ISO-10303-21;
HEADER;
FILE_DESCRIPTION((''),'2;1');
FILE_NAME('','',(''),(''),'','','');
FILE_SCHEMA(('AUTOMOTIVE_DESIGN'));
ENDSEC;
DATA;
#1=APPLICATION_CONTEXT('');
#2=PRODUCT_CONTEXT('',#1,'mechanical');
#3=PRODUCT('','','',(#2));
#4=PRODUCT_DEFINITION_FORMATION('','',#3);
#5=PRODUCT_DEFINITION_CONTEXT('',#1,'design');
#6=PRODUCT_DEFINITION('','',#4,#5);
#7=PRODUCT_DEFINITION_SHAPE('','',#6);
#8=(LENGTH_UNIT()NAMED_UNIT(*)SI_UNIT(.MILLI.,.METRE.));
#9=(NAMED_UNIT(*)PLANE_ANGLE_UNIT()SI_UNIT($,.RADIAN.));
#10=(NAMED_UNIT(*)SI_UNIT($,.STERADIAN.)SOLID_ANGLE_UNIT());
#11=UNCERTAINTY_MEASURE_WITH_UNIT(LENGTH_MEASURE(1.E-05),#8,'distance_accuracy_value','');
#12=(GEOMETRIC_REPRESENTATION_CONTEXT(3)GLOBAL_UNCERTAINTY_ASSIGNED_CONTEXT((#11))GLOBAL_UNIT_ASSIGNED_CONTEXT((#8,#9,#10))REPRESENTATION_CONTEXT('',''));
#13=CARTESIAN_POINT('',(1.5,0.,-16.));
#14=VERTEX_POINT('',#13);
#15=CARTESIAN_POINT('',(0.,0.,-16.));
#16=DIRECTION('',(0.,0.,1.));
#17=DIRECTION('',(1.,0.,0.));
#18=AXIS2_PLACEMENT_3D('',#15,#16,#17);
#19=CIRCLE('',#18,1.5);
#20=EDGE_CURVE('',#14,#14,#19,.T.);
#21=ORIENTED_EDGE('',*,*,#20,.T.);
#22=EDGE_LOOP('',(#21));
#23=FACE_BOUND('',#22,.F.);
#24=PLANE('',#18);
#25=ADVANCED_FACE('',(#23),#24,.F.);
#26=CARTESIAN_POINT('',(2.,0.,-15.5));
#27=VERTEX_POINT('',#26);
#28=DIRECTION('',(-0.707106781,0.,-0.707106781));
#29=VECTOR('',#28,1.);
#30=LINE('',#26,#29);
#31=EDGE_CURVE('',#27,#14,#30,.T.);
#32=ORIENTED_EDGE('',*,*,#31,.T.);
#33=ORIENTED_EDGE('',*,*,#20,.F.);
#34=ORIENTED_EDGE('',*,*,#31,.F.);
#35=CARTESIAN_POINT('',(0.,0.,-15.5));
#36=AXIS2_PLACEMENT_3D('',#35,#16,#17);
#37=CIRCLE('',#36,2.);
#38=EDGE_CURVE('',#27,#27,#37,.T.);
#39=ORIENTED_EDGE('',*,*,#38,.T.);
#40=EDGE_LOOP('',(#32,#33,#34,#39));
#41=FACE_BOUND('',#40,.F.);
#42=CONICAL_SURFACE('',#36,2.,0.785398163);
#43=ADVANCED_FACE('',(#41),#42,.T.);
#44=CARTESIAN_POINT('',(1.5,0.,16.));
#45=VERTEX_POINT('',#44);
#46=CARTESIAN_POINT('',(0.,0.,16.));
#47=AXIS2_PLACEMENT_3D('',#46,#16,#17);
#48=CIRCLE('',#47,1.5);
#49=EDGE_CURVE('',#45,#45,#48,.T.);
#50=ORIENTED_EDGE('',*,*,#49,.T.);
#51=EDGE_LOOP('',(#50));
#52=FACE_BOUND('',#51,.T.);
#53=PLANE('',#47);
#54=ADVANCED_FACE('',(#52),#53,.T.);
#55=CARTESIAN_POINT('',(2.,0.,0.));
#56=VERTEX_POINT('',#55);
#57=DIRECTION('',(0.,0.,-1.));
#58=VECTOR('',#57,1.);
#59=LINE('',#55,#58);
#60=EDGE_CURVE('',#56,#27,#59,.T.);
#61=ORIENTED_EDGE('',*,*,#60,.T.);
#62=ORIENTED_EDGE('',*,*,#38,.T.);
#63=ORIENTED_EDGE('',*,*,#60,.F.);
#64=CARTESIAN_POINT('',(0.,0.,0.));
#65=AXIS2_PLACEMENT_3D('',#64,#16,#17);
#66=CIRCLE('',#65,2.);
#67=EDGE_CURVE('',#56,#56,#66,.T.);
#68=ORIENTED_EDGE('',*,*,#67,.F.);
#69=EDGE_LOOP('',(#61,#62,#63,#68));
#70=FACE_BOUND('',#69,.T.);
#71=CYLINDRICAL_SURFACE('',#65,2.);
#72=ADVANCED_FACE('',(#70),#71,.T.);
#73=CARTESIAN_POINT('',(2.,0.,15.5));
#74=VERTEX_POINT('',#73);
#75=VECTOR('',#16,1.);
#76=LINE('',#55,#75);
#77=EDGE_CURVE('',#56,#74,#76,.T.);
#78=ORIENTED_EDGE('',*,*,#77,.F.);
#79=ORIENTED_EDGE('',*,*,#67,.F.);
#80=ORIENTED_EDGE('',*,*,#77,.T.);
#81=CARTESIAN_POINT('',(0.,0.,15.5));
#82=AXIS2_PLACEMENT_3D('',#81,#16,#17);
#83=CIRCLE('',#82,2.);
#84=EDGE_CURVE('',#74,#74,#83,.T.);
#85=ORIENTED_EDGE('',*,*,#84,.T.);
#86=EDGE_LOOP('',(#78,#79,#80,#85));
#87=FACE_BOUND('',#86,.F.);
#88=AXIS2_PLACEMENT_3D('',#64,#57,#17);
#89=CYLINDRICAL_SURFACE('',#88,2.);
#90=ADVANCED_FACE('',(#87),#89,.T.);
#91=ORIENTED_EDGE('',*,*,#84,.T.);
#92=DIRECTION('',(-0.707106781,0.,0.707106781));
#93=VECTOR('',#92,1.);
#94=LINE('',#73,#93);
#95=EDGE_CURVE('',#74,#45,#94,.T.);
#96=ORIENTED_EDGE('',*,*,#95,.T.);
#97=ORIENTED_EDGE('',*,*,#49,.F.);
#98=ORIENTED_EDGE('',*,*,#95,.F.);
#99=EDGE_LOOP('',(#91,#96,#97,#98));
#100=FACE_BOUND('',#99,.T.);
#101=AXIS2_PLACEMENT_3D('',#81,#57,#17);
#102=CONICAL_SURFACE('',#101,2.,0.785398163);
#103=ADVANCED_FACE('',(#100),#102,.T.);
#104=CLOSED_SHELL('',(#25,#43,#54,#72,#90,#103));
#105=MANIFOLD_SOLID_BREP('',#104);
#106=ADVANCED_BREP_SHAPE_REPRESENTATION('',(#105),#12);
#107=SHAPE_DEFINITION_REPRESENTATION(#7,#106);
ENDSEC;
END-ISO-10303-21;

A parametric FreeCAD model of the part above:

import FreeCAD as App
import Part
import Sketcher
from FreeCAD import Vector
Q = App.Units.Quantity


def edges_at(feature, points):
    """Names of the edges that pass closest to the given points."""
    edges = feature.Shape.Edges
    near = lambda p: min(range(len(edges)), key=lambda i: edges[i].distToShape(Part.Vertex(*p))[0])
    return sorted({f"Edge{near(p) + 1}" for p in points})

doc = App.newDocument("Part")
body = doc.addObject("PartDesign::Body", "Body")

# Sketch on XY plane
sketch1 = body.newObject("Sketcher::SketchObject", "Sketch")
sketch1.AttachmentSupport = (doc.getObject("XY_Plane"), [""])
sketch1.MapMode = "FlatFace"
sketch1.addGeometry(Part.Circle(Vector(0, 0, 0), Vector(0, 0, 1), 2), False)
sketch1.addConstraint(Sketcher.Constraint("Coincident", 0, 3, -1, 1))
sketch1.addConstraint(Sketcher.Constraint("Diameter", 0, Q("4 mm")))
pad1 = body.newObject("PartDesign::Pad", "Pad")
pad1.Profile = sketch1
pad1.Length = 32
pad1.Midplane = True
doc.recompute()

chamfer = body.newObject("PartDesign::Chamfer", "Chamfer")
chamfer.Base = (pad1, edges_at(pad1, [(-2, 0, 16), (-2, 0, -16)]))
chamfer.Size = 0.5

doc.recompute()
